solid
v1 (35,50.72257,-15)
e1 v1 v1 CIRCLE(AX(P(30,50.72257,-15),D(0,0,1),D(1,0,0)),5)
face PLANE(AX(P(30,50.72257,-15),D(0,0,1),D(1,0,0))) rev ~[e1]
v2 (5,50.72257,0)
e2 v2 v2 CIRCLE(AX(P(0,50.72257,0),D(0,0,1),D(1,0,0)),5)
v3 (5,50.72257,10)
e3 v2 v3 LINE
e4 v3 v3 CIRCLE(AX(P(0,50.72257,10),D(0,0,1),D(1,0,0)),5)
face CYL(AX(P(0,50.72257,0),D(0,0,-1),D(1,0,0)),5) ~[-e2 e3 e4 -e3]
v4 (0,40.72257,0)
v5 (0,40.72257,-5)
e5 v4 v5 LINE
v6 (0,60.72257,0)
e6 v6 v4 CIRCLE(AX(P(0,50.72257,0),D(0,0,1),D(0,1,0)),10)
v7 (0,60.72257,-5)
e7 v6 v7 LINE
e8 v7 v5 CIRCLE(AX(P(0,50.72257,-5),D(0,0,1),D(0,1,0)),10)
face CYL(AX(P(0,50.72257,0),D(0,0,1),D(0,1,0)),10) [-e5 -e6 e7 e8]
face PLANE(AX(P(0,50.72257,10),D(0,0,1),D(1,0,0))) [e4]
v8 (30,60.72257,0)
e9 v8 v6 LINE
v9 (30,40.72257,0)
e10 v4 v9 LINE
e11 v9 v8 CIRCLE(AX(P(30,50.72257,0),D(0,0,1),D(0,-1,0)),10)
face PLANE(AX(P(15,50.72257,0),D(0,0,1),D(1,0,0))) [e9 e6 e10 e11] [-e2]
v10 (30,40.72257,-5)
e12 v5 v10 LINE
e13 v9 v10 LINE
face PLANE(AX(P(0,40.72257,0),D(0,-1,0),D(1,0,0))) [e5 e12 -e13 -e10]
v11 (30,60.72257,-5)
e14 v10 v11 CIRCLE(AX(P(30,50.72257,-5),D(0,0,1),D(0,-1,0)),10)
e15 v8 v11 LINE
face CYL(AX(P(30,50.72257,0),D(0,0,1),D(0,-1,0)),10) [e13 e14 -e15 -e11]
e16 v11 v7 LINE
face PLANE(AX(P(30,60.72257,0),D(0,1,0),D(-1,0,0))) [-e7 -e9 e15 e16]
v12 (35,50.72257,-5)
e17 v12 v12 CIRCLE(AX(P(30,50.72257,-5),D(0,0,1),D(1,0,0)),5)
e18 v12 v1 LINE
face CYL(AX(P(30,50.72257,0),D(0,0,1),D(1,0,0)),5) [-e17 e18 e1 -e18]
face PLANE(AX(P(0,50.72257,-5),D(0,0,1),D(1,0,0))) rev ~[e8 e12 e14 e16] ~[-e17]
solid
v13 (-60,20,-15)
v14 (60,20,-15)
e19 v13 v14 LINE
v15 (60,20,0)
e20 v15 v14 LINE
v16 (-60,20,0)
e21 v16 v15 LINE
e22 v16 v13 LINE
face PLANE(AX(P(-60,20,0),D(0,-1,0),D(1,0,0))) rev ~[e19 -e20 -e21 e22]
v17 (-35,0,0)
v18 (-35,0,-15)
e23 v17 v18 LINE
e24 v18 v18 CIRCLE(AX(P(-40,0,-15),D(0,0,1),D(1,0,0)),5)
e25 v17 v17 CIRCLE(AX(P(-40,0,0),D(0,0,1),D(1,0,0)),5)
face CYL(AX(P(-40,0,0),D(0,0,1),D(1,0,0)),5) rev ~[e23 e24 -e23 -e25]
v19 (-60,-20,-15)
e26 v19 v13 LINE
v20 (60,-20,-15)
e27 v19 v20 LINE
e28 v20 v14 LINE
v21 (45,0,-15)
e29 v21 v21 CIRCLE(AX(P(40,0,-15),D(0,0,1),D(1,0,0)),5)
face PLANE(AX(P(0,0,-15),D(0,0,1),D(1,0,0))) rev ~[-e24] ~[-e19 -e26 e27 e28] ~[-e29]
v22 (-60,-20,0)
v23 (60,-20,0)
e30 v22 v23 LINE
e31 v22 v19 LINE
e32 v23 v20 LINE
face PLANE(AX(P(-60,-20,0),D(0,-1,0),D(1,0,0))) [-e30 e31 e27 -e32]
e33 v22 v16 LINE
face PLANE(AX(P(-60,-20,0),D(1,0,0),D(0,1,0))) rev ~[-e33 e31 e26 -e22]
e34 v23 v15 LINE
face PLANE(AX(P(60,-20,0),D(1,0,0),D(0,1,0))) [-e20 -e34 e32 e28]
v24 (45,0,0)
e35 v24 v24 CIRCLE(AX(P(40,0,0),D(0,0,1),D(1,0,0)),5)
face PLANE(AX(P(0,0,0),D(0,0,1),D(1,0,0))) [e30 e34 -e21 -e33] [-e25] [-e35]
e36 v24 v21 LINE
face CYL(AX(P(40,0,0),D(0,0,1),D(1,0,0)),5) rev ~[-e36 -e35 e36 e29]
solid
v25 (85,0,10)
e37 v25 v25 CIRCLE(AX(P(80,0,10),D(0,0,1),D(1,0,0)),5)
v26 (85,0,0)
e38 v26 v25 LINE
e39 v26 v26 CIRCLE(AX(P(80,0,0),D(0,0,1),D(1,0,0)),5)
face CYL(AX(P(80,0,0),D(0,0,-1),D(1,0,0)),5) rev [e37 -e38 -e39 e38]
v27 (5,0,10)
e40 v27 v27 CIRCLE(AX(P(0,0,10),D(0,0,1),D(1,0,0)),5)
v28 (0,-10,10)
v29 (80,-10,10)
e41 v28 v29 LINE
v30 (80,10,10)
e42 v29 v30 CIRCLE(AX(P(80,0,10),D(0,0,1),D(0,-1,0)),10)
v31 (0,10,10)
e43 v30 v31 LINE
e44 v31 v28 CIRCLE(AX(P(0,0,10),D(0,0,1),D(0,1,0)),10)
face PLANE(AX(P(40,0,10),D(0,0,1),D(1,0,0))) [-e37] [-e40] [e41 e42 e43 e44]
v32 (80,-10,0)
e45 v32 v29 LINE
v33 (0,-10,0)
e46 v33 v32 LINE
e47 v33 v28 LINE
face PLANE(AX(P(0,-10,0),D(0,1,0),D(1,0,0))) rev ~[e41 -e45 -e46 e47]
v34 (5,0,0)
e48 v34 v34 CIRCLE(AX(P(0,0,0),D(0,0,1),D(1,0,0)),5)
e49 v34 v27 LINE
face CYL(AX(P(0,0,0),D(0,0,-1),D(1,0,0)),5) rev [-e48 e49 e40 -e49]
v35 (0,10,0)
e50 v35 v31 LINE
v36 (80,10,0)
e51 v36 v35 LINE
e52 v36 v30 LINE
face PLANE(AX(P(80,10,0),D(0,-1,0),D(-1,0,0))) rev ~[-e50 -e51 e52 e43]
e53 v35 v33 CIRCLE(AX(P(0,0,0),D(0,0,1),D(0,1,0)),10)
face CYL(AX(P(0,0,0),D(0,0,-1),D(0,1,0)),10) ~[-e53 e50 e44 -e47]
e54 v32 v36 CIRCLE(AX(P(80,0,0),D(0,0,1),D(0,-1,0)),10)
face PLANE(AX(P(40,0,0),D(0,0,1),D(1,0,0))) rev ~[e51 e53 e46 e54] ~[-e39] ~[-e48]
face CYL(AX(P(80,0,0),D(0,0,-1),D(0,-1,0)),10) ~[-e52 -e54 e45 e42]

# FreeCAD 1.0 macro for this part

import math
import FreeCAD as App
import Part
import Sketcher

V = App.Vector

doc = App.newDocument("Part")
params = doc.addObject("Spreadsheet::Sheet", "Params")
for row, (alias, value) in enumerate([
    ("sketch1_diameter", "10 mm"),
    ("sketch1_width", "120 mm"),
    ("sketch1_height", "40 mm"),
    ("pad1_length", "15 mm"),
    ("sketch2_diameter", "10 mm"),
    ("sketch2_radius", "10 mm"),
    ("sketch2_width", "30 mm"),
    ("pad2_length", "5 mm"),
    ("sketch3_diameter", "10 mm"),
    ("pad3_length", "10 mm"),
    ("pad3_length2", "5 mm"),
    ("sketch4_diameter", "10 mm"),
    ("pad4_length", "15 mm"),
    ("sketch5_diameter", "10 mm"),
    ("sketch5_radius", "10 mm"),
    ("sketch5_width", "80 mm"),
    ("pad5_length", "10 mm"),
], start=1):
    params.set(f"A{row}", alias)
    params.set(f"B{row}", "=" + value)
    params.setAlias(f"B{row}", alias)

body = doc.addObject("PartDesign::Body", "Body")

# Sketch on XY plane
sketch1 = body.newObject("Sketcher::SketchObject", "Sketch")
sketch1.AttachmentSupport = (doc.getObject("XY_Plane"), [""])
sketch1.MapMode = "FlatFace"
sketch1.addGeometry([
    Part.LineSegment(V(-60, 20, 0), V(-60, -20, 0)),  # 0
    Part.LineSegment(V(-60, -20, 0), V(60, -20, 0)),  # 1
    Part.LineSegment(V(60, -20, 0), V(60, 20, 0)),  # 2
    Part.LineSegment(V(60, 20, 0), V(-60, 20, 0)),  # 3
    Part.Circle(V(-40, 0, 0), V(0, 0, 1), 5),  # 4
    Part.Circle(V(40, 0, 0), V(0, 0, 1), 5),  # 5
], False)
sketch1.addConstraint([
    Sketcher.Constraint("Coincident", 0, 2, 1, 1),
    Sketcher.Constraint("Coincident", 1, 2, 2, 1),
    Sketcher.Constraint("Coincident", 2, 2, 3, 1),
    Sketcher.Constraint("Coincident", 3, 2, 0, 1),
    Sketcher.Constraint("Vertical", 0),
    Sketcher.Constraint("Horizontal", 1),
    Sketcher.Constraint("Vertical", 2),
    Sketcher.Constraint("Horizontal", 3),
    Sketcher.Constraint("Equal", 4, 5),
    Sketcher.Constraint("Symmetric", 4, 3, 5, 3, -1, 1),
    Sketcher.Constraint("Symmetric", 0, 2, 2, 2, -1, 1),
    Sketcher.Constraint("PointOnObject", 4, 3, -1),
    Sketcher.Constraint("Diameter", 4, 10.0),
    Sketcher.Constraint("DistanceX", 1, 1, 1, 2, 120.0),
    Sketcher.Constraint("DistanceY", 0, 2, 0, 1, 40.0),
    Sketcher.Constraint("DistanceX", 4, 3, -1, 1, 40.0),
])
sketch1.setExpression("Constraints[12]", "Params.sketch1_diameter")
sketch1.setExpression("Constraints[13]", "Params.sketch1_width")
sketch1.setExpression("Constraints[14]", "Params.sketch1_height")
pad1 = body.newObject("PartDesign::Pad", "Pad")
pad1.Profile = sketch1
pad1.setExpression("Length", "Params.pad1_length")
pad1.Reversed = True
body2 = doc.addObject("PartDesign::Body", "Body001")

# Sketch on XY plane
sketch2 = body2.newObject("Sketcher::SketchObject", "Sketch001")
sketch2.AttachmentSupport = (doc.getObject("XY_Plane001"), [""])
sketch2.MapMode = "FlatFace"
sketch2.addGeometry([
    Part.LineSegment(V(30, 60.72257, 0), V(0, 60.72257, 0)),  # 0
    Part.ArcOfCircle(Part.Circle(V(0, 50.72257, 0), V(0, 0, 1), 10), math.radians(90), math.radians(270)),  # 1
    Part.LineSegment(V(0, 40.72257, 0), V(30, 40.72257, 0)),  # 2
    Part.ArcOfCircle(Part.Circle(V(30, 50.72257, 0), V(0, 0, 1), 10), math.radians(-90), math.radians(90)),  # 3
    Part.Circle(V(0, 50.72257, 0), V(0, 0, 1), 5),  # 4
    Part.Circle(V(30, 50.72257, 0), V(0, 0, 1), 5),  # 5
], False)
sketch2.addConstraint([
    Sketcher.Constraint("Tangent", 0, 2, 1, 1),
    Sketcher.Constraint("Tangent", 1, 2, 2, 1),
    Sketcher.Constraint("Tangent", 2, 2, 3, 1),
    Sketcher.Constraint("Tangent", 3, 2, 0, 1),
    Sketcher.Constraint("Horizontal", 0),
    Sketcher.Constraint("Horizontal", 2),
    Sketcher.Constraint("Coincident", 4, 3, 1, 3),
    Sketcher.Constraint("Coincident", 5, 3, 3, 3),
    Sketcher.Constraint("Equal", 4, 5),
    Sketcher.Constraint("PointOnObject", 1, 3, -2),
    Sketcher.Constraint("Diameter", 4, 10.0),
    Sketcher.Constraint("Radius", 1, 10.0),
    Sketcher.Constraint("DistanceX", 0, 2, 0, 1, 30.0),
    Sketcher.Constraint("DistanceY", -1, 1, 1, 3, 50.72257),
])
sketch2.setExpression("Constraints[10]", "Params.sketch2_diameter")
sketch2.setExpression("Constraints[11]", "Params.sketch2_radius")
sketch2.setExpression("Constraints[12]", "Params.sketch2_width")
pad2 = body2.newObject("PartDesign::Pad", "Pad001")
pad2.Profile = sketch2
pad2.setExpression("Length", "Params.pad2_length")
pad2.Reversed = True

# Sketch on XY plane
sketch3 = body2.newObject("Sketcher::SketchObject", "Sketch002")
sketch3.AttachmentSupport = (doc.getObject("XY_Plane001"), [""])
sketch3.MapMode = "FlatFace"
sketch3.addGeometry(Part.Circle(V(0, 50.72257, 0), V(0, 0, 1), 5), False)
sketch3.addConstraint([
    Sketcher.Constraint("PointOnObject", 0, 3, -2),
    Sketcher.Constraint("Diameter", 0, 10.0),
    Sketcher.Constraint("DistanceY", -1, 1, 0, 3, 50.72257),
])
sketch3.setExpression("Constraints[1]", "Params.sketch3_diameter")
pad3 = body2.newObject("PartDesign::Pad", "Pad002")
pad3.Profile = sketch3
pad3.Type = "TwoLengths"
pad3.setExpression("Length", "Params.pad3_length")
pad3.setExpression("Length2", "Params.pad3_length2")

# Sketch on XY plane
sketch4 = body2.newObject("Sketcher::SketchObject", "Sketch003")
sketch4.AttachmentSupport = (doc.getObject("XY_Plane001"), [""])
sketch4.MapMode = "FlatFace"
sketch4.addGeometry(Part.Circle(V(30, 50.72257, 0), V(0, 0, 1), 5), False)
sketch4.addConstraint([
    Sketcher.Constraint("Diameter", 0, 10.0),
    Sketcher.Constraint("DistanceX", -1, 1, 0, 3, 30.0),
    Sketcher.Constraint("DistanceY", -1, 1, 0, 3, 50.72257),
])
sketch4.setExpression("Constraints[0]", "Params.sketch4_diameter")
pad4 = body2.newObject("PartDesign::Pad", "Pad003")
pad4.Profile = sketch4
pad4.setExpression("Length", "Params.pad4_length")
pad4.Reversed = True
body3 = doc.addObject("PartDesign::Body", "Body002")

# Sketch on XY plane
sketch5 = body3.newObject("Sketcher::SketchObject", "Sketch004")
sketch5.AttachmentSupport = (doc.getObject("XY_Plane002"), [""])
sketch5.MapMode = "FlatFace"
sketch5.addGeometry([
    Part.LineSegment(V(80, 10, 0), V(0, 10, 0)),  # 0
    Part.ArcOfCircle(Part.Circle(V(0, 0, 0), V(0, 0, 1), 10), math.radians(90), math.radians(270)),  # 1
    Part.LineSegment(V(0, -10, 0), V(80, -10, 0)),  # 2
    Part.ArcOfCircle(Part.Circle(V(80, 0, 0), V(0, 0, 1), 10), math.radians(-90), math.radians(90)),  # 3
    Part.Circle(V(0, 0, 0), V(0, 0, 1), 5),  # 4
    Part.Circle(V(80, 0, 0), V(0, 0, 1), 5),  # 5
], False)
sketch5.addConstraint([
    Sketcher.Constraint("Tangent", 0, 2, 1, 1),
    Sketcher.Constraint("Tangent", 1, 2, 2, 1),
    Sketcher.Constraint("Tangent", 2, 2, 3, 1),
    Sketcher.Constraint("Tangent", 3, 2, 0, 1),
    Sketcher.Constraint("Horizontal", 0),
    Sketcher.Constraint("Horizontal", 2),
    Sketcher.Constraint("Coincident", 1, 3, -1, 1),
    Sketcher.Constraint("Coincident", 4, 3, -1, 1),
    Sketcher.Constraint("Coincident", 5, 3, 3, 3),
    Sketcher.Constraint("Equal", 4, 5),
    Sketcher.Constraint("Diameter", 4, 10.0),
    Sketcher.Constraint("Radius", 1, 10.0),
    Sketcher.Constraint("DistanceX", 0, 2, 0, 1, 80.0),
])
sketch5.setExpression("Constraints[10]", "Params.sketch5_diameter")
sketch5.setExpression("Constraints[11]", "Params.sketch5_radius")
sketch5.setExpression("Constraints[12]", "Params.sketch5_width")
pad5 = body3.newObject("PartDesign::Pad", "Pad004")
pad5.Profile = sketch5
pad5.setExpression("Length", "Params.pad5_length")

doc.recompute()
